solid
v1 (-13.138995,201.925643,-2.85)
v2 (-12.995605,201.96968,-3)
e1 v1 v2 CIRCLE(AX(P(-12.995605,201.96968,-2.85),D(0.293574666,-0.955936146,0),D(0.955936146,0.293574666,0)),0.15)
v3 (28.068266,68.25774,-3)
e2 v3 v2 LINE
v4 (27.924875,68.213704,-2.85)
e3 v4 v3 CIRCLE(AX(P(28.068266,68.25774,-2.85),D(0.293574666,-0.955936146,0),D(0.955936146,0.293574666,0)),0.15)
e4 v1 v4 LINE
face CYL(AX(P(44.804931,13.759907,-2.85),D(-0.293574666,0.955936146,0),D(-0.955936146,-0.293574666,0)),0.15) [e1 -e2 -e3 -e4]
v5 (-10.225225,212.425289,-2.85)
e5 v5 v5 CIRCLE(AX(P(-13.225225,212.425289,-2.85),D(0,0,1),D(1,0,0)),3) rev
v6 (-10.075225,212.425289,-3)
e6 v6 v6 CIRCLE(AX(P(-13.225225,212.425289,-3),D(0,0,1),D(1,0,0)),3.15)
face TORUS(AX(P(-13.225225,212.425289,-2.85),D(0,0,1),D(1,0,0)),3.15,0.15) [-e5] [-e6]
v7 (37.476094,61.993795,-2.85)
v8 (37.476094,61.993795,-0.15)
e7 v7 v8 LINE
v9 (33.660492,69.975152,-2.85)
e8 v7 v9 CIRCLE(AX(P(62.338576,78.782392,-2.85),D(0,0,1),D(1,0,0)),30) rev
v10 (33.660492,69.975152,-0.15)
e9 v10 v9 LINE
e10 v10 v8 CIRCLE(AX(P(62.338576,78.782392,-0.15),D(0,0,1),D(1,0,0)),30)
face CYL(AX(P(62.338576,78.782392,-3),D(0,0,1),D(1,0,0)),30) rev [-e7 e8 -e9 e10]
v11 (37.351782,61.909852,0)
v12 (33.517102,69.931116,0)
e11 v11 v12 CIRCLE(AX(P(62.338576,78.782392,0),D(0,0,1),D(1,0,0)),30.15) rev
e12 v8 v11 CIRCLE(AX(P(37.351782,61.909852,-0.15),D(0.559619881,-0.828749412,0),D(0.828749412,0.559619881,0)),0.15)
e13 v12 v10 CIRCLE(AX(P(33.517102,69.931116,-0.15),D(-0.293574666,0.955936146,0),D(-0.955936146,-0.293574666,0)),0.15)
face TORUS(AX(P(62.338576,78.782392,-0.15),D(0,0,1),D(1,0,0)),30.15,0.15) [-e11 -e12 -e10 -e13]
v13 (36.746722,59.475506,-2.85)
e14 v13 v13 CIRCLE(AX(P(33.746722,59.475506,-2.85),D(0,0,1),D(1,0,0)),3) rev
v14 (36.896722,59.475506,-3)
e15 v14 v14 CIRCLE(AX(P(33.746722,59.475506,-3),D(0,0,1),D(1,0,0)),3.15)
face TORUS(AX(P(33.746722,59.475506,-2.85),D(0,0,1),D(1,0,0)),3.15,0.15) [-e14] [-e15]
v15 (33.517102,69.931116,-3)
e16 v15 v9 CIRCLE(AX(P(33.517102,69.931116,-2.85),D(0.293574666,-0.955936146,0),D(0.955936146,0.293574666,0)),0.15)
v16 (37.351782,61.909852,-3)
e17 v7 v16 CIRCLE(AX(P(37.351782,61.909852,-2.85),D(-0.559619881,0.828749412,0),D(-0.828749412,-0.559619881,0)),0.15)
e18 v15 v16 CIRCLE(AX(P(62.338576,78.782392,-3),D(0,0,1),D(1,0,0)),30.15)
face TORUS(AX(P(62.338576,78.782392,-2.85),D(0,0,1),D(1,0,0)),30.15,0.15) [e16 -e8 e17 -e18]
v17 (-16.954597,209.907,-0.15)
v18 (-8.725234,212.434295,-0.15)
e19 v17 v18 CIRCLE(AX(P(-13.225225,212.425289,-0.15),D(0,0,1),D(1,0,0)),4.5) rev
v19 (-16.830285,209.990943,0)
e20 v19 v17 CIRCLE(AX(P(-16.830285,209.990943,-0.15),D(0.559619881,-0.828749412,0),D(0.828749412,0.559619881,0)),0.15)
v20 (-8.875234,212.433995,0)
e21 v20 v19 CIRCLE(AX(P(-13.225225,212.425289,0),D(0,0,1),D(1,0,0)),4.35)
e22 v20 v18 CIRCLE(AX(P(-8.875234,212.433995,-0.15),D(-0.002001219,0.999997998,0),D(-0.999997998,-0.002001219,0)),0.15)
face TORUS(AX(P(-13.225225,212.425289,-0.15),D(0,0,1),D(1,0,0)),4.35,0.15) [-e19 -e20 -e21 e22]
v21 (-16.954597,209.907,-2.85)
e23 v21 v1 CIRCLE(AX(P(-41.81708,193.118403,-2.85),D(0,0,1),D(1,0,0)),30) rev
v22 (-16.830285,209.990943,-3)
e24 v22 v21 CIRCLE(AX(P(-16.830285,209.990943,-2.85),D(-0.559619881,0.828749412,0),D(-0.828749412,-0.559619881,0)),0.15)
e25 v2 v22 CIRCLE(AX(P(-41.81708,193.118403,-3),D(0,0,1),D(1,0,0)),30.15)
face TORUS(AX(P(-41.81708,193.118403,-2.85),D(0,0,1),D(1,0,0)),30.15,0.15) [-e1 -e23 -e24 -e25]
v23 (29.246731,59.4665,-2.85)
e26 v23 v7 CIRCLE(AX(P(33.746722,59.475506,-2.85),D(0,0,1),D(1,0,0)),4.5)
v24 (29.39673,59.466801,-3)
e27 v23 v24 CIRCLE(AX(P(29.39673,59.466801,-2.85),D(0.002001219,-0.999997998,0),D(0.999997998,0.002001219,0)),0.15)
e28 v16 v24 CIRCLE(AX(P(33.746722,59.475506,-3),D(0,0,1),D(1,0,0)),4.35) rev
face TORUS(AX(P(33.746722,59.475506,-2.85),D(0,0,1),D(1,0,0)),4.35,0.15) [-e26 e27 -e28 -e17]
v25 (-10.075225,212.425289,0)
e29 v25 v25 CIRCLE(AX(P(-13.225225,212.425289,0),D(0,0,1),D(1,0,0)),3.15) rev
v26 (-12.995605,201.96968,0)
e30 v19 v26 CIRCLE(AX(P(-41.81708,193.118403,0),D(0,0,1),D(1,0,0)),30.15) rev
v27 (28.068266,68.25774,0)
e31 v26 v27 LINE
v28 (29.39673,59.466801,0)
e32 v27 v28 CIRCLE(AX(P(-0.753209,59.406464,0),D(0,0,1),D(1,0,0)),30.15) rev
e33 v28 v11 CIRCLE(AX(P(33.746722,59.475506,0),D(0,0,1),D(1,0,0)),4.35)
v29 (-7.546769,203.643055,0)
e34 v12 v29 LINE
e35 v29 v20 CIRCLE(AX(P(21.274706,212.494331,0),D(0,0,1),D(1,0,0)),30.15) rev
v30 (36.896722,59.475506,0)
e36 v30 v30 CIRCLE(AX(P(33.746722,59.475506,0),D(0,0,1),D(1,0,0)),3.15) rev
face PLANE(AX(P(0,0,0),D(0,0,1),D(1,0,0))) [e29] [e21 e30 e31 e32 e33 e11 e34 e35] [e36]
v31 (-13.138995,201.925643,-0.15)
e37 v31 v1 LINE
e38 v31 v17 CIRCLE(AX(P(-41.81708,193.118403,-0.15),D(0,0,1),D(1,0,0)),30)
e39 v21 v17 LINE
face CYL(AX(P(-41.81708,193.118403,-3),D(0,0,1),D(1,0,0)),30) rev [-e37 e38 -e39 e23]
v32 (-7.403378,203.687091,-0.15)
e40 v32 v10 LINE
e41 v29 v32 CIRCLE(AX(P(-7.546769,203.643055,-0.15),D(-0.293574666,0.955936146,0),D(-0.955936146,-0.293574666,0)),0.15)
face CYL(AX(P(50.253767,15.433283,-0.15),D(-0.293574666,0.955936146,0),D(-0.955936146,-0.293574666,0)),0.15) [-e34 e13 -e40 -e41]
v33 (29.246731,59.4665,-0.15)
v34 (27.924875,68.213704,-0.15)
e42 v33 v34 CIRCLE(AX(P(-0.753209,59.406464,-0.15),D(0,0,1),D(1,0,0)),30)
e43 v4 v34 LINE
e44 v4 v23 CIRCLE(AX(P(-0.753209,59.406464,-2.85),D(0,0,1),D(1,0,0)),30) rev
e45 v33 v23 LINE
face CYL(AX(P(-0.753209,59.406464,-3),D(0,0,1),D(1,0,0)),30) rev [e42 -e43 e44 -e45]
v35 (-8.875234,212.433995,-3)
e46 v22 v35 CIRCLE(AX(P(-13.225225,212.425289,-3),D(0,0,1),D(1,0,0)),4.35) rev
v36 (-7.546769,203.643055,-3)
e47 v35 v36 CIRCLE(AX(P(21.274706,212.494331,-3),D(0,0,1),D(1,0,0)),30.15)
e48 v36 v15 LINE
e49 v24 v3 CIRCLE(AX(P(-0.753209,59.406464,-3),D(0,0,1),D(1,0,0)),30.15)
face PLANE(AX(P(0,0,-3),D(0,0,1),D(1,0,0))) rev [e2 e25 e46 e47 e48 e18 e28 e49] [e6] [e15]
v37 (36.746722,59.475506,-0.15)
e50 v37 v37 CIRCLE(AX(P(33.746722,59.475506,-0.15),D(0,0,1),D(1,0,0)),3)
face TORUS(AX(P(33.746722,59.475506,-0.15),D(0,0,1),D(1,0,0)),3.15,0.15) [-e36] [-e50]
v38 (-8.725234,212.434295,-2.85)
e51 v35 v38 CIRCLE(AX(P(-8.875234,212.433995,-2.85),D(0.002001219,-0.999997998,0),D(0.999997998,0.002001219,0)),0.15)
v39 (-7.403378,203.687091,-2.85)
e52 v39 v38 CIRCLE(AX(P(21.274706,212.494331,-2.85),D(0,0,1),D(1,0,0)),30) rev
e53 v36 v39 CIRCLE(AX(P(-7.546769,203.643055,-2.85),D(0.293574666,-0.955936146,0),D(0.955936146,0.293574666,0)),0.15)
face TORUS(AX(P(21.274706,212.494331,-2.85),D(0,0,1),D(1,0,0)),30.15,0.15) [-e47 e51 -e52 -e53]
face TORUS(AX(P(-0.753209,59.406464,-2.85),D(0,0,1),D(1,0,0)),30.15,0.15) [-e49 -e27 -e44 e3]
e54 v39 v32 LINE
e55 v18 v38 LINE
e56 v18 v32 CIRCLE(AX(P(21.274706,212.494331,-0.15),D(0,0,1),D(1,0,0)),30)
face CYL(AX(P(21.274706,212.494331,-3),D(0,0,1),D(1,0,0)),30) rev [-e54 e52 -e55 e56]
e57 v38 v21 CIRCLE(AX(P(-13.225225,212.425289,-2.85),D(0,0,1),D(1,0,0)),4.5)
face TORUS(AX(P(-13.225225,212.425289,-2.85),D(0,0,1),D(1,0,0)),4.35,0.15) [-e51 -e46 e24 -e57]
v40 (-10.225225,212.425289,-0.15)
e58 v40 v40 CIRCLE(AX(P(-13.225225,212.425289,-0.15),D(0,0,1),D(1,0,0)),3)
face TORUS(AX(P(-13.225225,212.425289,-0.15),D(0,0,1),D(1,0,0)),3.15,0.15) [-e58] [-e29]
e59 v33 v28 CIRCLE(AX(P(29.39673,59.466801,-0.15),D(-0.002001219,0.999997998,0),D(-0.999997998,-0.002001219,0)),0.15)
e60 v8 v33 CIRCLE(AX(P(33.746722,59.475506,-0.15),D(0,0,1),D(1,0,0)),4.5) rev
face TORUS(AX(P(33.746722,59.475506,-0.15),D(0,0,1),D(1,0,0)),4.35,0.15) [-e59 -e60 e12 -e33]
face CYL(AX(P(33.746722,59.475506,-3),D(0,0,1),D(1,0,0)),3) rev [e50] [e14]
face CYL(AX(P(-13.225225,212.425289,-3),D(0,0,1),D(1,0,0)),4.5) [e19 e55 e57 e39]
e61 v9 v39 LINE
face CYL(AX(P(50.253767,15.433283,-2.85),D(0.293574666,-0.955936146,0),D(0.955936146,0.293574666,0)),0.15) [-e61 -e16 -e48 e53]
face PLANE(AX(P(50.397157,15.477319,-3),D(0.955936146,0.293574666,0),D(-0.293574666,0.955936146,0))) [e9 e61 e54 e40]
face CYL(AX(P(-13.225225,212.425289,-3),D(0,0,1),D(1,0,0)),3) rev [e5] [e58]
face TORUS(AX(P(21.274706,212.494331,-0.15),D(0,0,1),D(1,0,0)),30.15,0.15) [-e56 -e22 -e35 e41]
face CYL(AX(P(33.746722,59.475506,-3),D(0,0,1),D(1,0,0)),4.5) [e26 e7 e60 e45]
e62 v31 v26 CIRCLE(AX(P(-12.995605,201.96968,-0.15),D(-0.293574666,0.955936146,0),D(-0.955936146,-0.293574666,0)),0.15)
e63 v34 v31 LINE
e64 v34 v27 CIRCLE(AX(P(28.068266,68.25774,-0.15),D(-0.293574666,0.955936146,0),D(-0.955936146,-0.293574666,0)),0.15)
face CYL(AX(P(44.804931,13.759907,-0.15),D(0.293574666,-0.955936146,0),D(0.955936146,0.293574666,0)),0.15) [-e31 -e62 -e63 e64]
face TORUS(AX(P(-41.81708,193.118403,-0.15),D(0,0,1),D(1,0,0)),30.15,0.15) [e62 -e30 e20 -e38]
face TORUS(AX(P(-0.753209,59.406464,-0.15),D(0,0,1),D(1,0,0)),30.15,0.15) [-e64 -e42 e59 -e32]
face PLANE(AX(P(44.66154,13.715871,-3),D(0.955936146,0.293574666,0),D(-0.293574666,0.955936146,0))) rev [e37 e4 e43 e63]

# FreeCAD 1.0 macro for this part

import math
import FreeCAD as App
import Part
import Sketcher
from FreeCAD import Vector
Q = App.Units.Quantity


def edges_at(feature, points):
    """Names of the edges that pass closest to the given points."""
    edges = feature.Shape.Edges
    near = lambda p: min(range(len(edges)), key=lambda i: edges[i].distToShape(Part.Vertex(*p))[0])
    return sorted({f"Edge{near(p) + 1}" for p in points})

doc = App.newDocument("Part")
params = doc.addObject("Spreadsheet::Sheet", "Params")
for row, (alias, value) in enumerate([
    ("sketch1_diameter", "6 mm"),
    ("sketch1_radius", "4.5 mm"),
    ("pad1_length", "3 mm"),
    ("fillet_radius", "30 mm"),
    ("fillet2_radius", "0.15 mm"),
], start=1):
    params.set(f"A{row}", alias)
    params.set(f"B{row}", "=" + value)
    params.setAlias(f"B{row}", alias)

body = doc.addObject("PartDesign::Body", "Body")

# Sketch on XY plane
sketch1 = body.newObject("Sketcher::SketchObject", "Sketch")
sketch1.AttachmentSupport = (doc.getObject("XY_Plane"), [""])
sketch1.MapMode = "FlatFace"
sketch1.addGeometry(Part.LineSegment(Vector(-15.108354, 208.338258, 0), Vector(29.894234, 61.801089, 0)), False)
sketch1.addGeometry(Part.ArcOfCircle(Part.Circle(Vector(33.746722, 59.475506, 0), Vector(0, 0, 1), 4.5), math.radians(148.882403), math.radians(360)), False)
sketch1.addGeometry(Part.ArcOfCircle(Part.Circle(Vector(33.746722, 59.475506, 0), Vector(0, 0, 1), 4.5), math.radians(0), math.radians(65.261773)), False)
sketch1.addGeometry(Part.LineSegment(Vector(35.629851, 63.562537, 0), Vector(-9.372737, 210.099706, 0)), False)
sketch1.addGeometry(Part.ArcOfCircle(Part.Circle(Vector(-13.225225, 212.425289, 0), Vector(0, 0, 1), 4.5), math.radians(-31.117597), math.radians(0)), False)
sketch1.addGeometry(Part.ArcOfCircle(Part.Circle(Vector(-13.225225, 212.425289, 0), Vector(0, 0, 1), 4.5), math.radians(0), math.radians(245.261773)), False)
sketch1.addGeometry(Part.Circle(Vector(-13.225225, 212.425289, 0), Vector(0, 0, 1), 3), False)
sketch1.addGeometry(Part.Circle(Vector(33.746722, 59.475506, 0), Vector(0, 0, 1), 3), False)
sketch1.addConstraint(Sketcher.Constraint("Coincident", 0, 2, 1, 1))
sketch1.addConstraint(Sketcher.Constraint("Tangent", 1, 2, 2, 1))
sketch1.addConstraint(Sketcher.Constraint("Coincident", 2, 2, 3, 1))
sketch1.addConstraint(Sketcher.Constraint("Coincident", 3, 2, 4, 1))
sketch1.addConstraint(Sketcher.Constraint("Tangent", 4, 2, 5, 1))
sketch1.addConstraint(Sketcher.Constraint("Coincident", 5, 2, 0, 1))
sketch1.addConstraint(Sketcher.Constraint("Coincident", 6, 3, 4, 3))
sketch1.addConstraint(Sketcher.Constraint("Coincident", 7, 3, 1, 3))
sketch1.addConstraint(Sketcher.Constraint("Equal", 1, 2))
sketch1.addConstraint(Sketcher.Constraint("Equal", 2, 4))
sketch1.addConstraint(Sketcher.Constraint("Equal", 4, 5))
sketch1.addConstraint(Sketcher.Constraint("Equal", 6, 7))
sketch1.addConstraint(Sketcher.Constraint("Parallel", 0, 3))
sketch1.addConstraint(Sketcher.Constraint("Horizontal", 7, 3, 1, 2))
sketch1.addConstraint(Sketcher.Constraint("Horizontal", 6, 3, 4, 2))
sketch1.addConstraint(Sketcher.Constraint("Equal", 0, 3))
sketch1.addConstraint(Sketcher.Constraint("Diameter", 6, Q("6 mm")))
sketch1.addConstraint(Sketcher.Constraint("Radius", 1, Q("4.5 mm")))
sketch1.addConstraint(Sketcher.Constraint("DistanceY", 0, 2, 5, 3, Q("150.6242 mm")))
sketch1.addConstraint(Sketcher.Constraint("DistanceX", -1, 1, 1, 3, Q("33.746722 mm")))
sketch1.addConstraint(Sketcher.Constraint("DistanceY", -1, 1, 4, 3, Q("212.425289 mm")))
sketch1.addConstraint(Sketcher.Constraint("DistanceX", -1, 1, 2, 2, Q("35.629851 mm")))
sketch1.addConstraint(Sketcher.Constraint("DistanceX", 5, 3, 0, 2, Q("43.119459 mm")))
sketch1.addConstraint(Sketcher.Constraint("DistanceX", 3, 2, 0, 2, Q("39.266971 mm")))
sketch1.setExpression("Constraints[16]", "Params.sketch1_diameter")
sketch1.setExpression("Constraints[17]", "Params.sketch1_radius")
pad1 = body.newObject("PartDesign::Pad", "Pad")
pad1.Profile = sketch1
pad1.setExpression("Length", "Params.pad1_length")
pad1.Reversed = True
doc.recompute()

fillet = body.newObject("PartDesign::Fillet", "Fillet")
fillet.Base = (pad1, edges_at(pad1, [
    (29.894, 61.801, -1.5),
    (-15.108, 208.338, -1.5),
    (-9.373, 210.1, -1.5),
    (35.63, 63.563, -1.5),
]))
fillet.setExpression("Radius", "Params.fillet_radius")
doc.recompute()

fillet2 = body.newObject("PartDesign::Fillet", "Fillet001")
fillet2.Base = (fillet, edges_at(fillet, [
    (-10.357, 213.306, 0),
    (-14.546, 216.727, 0),
    (-14.546, 216.727, -3),
    (7.393, 135.07, 0),
    (7.393, 135.07, -3),
    (13.129, 136.831, 0),
    (13.129, 136.831, -3),
    (33.751, 54.976, 0),
    (33.751, 54.976, -3),
    (-14.751, 206.058, 0),
    (-14.751, 206.058, -3),
    (-8.389, 208.012, 0),
    (30.879, 58.595, -3),
    (-8.389, 208.012, -3),
    (35.272, 65.843, 0),
    (35.272, 65.843, -3),
    (28.91, 63.889, 0),
    (28.91, 63.889, -3),
    (-10.357, 213.306, -3),
    (30.879, 58.595, 0),
]))
fillet2.setExpression("Radius", "Params.fillet2_radius")

doc.recompute()
